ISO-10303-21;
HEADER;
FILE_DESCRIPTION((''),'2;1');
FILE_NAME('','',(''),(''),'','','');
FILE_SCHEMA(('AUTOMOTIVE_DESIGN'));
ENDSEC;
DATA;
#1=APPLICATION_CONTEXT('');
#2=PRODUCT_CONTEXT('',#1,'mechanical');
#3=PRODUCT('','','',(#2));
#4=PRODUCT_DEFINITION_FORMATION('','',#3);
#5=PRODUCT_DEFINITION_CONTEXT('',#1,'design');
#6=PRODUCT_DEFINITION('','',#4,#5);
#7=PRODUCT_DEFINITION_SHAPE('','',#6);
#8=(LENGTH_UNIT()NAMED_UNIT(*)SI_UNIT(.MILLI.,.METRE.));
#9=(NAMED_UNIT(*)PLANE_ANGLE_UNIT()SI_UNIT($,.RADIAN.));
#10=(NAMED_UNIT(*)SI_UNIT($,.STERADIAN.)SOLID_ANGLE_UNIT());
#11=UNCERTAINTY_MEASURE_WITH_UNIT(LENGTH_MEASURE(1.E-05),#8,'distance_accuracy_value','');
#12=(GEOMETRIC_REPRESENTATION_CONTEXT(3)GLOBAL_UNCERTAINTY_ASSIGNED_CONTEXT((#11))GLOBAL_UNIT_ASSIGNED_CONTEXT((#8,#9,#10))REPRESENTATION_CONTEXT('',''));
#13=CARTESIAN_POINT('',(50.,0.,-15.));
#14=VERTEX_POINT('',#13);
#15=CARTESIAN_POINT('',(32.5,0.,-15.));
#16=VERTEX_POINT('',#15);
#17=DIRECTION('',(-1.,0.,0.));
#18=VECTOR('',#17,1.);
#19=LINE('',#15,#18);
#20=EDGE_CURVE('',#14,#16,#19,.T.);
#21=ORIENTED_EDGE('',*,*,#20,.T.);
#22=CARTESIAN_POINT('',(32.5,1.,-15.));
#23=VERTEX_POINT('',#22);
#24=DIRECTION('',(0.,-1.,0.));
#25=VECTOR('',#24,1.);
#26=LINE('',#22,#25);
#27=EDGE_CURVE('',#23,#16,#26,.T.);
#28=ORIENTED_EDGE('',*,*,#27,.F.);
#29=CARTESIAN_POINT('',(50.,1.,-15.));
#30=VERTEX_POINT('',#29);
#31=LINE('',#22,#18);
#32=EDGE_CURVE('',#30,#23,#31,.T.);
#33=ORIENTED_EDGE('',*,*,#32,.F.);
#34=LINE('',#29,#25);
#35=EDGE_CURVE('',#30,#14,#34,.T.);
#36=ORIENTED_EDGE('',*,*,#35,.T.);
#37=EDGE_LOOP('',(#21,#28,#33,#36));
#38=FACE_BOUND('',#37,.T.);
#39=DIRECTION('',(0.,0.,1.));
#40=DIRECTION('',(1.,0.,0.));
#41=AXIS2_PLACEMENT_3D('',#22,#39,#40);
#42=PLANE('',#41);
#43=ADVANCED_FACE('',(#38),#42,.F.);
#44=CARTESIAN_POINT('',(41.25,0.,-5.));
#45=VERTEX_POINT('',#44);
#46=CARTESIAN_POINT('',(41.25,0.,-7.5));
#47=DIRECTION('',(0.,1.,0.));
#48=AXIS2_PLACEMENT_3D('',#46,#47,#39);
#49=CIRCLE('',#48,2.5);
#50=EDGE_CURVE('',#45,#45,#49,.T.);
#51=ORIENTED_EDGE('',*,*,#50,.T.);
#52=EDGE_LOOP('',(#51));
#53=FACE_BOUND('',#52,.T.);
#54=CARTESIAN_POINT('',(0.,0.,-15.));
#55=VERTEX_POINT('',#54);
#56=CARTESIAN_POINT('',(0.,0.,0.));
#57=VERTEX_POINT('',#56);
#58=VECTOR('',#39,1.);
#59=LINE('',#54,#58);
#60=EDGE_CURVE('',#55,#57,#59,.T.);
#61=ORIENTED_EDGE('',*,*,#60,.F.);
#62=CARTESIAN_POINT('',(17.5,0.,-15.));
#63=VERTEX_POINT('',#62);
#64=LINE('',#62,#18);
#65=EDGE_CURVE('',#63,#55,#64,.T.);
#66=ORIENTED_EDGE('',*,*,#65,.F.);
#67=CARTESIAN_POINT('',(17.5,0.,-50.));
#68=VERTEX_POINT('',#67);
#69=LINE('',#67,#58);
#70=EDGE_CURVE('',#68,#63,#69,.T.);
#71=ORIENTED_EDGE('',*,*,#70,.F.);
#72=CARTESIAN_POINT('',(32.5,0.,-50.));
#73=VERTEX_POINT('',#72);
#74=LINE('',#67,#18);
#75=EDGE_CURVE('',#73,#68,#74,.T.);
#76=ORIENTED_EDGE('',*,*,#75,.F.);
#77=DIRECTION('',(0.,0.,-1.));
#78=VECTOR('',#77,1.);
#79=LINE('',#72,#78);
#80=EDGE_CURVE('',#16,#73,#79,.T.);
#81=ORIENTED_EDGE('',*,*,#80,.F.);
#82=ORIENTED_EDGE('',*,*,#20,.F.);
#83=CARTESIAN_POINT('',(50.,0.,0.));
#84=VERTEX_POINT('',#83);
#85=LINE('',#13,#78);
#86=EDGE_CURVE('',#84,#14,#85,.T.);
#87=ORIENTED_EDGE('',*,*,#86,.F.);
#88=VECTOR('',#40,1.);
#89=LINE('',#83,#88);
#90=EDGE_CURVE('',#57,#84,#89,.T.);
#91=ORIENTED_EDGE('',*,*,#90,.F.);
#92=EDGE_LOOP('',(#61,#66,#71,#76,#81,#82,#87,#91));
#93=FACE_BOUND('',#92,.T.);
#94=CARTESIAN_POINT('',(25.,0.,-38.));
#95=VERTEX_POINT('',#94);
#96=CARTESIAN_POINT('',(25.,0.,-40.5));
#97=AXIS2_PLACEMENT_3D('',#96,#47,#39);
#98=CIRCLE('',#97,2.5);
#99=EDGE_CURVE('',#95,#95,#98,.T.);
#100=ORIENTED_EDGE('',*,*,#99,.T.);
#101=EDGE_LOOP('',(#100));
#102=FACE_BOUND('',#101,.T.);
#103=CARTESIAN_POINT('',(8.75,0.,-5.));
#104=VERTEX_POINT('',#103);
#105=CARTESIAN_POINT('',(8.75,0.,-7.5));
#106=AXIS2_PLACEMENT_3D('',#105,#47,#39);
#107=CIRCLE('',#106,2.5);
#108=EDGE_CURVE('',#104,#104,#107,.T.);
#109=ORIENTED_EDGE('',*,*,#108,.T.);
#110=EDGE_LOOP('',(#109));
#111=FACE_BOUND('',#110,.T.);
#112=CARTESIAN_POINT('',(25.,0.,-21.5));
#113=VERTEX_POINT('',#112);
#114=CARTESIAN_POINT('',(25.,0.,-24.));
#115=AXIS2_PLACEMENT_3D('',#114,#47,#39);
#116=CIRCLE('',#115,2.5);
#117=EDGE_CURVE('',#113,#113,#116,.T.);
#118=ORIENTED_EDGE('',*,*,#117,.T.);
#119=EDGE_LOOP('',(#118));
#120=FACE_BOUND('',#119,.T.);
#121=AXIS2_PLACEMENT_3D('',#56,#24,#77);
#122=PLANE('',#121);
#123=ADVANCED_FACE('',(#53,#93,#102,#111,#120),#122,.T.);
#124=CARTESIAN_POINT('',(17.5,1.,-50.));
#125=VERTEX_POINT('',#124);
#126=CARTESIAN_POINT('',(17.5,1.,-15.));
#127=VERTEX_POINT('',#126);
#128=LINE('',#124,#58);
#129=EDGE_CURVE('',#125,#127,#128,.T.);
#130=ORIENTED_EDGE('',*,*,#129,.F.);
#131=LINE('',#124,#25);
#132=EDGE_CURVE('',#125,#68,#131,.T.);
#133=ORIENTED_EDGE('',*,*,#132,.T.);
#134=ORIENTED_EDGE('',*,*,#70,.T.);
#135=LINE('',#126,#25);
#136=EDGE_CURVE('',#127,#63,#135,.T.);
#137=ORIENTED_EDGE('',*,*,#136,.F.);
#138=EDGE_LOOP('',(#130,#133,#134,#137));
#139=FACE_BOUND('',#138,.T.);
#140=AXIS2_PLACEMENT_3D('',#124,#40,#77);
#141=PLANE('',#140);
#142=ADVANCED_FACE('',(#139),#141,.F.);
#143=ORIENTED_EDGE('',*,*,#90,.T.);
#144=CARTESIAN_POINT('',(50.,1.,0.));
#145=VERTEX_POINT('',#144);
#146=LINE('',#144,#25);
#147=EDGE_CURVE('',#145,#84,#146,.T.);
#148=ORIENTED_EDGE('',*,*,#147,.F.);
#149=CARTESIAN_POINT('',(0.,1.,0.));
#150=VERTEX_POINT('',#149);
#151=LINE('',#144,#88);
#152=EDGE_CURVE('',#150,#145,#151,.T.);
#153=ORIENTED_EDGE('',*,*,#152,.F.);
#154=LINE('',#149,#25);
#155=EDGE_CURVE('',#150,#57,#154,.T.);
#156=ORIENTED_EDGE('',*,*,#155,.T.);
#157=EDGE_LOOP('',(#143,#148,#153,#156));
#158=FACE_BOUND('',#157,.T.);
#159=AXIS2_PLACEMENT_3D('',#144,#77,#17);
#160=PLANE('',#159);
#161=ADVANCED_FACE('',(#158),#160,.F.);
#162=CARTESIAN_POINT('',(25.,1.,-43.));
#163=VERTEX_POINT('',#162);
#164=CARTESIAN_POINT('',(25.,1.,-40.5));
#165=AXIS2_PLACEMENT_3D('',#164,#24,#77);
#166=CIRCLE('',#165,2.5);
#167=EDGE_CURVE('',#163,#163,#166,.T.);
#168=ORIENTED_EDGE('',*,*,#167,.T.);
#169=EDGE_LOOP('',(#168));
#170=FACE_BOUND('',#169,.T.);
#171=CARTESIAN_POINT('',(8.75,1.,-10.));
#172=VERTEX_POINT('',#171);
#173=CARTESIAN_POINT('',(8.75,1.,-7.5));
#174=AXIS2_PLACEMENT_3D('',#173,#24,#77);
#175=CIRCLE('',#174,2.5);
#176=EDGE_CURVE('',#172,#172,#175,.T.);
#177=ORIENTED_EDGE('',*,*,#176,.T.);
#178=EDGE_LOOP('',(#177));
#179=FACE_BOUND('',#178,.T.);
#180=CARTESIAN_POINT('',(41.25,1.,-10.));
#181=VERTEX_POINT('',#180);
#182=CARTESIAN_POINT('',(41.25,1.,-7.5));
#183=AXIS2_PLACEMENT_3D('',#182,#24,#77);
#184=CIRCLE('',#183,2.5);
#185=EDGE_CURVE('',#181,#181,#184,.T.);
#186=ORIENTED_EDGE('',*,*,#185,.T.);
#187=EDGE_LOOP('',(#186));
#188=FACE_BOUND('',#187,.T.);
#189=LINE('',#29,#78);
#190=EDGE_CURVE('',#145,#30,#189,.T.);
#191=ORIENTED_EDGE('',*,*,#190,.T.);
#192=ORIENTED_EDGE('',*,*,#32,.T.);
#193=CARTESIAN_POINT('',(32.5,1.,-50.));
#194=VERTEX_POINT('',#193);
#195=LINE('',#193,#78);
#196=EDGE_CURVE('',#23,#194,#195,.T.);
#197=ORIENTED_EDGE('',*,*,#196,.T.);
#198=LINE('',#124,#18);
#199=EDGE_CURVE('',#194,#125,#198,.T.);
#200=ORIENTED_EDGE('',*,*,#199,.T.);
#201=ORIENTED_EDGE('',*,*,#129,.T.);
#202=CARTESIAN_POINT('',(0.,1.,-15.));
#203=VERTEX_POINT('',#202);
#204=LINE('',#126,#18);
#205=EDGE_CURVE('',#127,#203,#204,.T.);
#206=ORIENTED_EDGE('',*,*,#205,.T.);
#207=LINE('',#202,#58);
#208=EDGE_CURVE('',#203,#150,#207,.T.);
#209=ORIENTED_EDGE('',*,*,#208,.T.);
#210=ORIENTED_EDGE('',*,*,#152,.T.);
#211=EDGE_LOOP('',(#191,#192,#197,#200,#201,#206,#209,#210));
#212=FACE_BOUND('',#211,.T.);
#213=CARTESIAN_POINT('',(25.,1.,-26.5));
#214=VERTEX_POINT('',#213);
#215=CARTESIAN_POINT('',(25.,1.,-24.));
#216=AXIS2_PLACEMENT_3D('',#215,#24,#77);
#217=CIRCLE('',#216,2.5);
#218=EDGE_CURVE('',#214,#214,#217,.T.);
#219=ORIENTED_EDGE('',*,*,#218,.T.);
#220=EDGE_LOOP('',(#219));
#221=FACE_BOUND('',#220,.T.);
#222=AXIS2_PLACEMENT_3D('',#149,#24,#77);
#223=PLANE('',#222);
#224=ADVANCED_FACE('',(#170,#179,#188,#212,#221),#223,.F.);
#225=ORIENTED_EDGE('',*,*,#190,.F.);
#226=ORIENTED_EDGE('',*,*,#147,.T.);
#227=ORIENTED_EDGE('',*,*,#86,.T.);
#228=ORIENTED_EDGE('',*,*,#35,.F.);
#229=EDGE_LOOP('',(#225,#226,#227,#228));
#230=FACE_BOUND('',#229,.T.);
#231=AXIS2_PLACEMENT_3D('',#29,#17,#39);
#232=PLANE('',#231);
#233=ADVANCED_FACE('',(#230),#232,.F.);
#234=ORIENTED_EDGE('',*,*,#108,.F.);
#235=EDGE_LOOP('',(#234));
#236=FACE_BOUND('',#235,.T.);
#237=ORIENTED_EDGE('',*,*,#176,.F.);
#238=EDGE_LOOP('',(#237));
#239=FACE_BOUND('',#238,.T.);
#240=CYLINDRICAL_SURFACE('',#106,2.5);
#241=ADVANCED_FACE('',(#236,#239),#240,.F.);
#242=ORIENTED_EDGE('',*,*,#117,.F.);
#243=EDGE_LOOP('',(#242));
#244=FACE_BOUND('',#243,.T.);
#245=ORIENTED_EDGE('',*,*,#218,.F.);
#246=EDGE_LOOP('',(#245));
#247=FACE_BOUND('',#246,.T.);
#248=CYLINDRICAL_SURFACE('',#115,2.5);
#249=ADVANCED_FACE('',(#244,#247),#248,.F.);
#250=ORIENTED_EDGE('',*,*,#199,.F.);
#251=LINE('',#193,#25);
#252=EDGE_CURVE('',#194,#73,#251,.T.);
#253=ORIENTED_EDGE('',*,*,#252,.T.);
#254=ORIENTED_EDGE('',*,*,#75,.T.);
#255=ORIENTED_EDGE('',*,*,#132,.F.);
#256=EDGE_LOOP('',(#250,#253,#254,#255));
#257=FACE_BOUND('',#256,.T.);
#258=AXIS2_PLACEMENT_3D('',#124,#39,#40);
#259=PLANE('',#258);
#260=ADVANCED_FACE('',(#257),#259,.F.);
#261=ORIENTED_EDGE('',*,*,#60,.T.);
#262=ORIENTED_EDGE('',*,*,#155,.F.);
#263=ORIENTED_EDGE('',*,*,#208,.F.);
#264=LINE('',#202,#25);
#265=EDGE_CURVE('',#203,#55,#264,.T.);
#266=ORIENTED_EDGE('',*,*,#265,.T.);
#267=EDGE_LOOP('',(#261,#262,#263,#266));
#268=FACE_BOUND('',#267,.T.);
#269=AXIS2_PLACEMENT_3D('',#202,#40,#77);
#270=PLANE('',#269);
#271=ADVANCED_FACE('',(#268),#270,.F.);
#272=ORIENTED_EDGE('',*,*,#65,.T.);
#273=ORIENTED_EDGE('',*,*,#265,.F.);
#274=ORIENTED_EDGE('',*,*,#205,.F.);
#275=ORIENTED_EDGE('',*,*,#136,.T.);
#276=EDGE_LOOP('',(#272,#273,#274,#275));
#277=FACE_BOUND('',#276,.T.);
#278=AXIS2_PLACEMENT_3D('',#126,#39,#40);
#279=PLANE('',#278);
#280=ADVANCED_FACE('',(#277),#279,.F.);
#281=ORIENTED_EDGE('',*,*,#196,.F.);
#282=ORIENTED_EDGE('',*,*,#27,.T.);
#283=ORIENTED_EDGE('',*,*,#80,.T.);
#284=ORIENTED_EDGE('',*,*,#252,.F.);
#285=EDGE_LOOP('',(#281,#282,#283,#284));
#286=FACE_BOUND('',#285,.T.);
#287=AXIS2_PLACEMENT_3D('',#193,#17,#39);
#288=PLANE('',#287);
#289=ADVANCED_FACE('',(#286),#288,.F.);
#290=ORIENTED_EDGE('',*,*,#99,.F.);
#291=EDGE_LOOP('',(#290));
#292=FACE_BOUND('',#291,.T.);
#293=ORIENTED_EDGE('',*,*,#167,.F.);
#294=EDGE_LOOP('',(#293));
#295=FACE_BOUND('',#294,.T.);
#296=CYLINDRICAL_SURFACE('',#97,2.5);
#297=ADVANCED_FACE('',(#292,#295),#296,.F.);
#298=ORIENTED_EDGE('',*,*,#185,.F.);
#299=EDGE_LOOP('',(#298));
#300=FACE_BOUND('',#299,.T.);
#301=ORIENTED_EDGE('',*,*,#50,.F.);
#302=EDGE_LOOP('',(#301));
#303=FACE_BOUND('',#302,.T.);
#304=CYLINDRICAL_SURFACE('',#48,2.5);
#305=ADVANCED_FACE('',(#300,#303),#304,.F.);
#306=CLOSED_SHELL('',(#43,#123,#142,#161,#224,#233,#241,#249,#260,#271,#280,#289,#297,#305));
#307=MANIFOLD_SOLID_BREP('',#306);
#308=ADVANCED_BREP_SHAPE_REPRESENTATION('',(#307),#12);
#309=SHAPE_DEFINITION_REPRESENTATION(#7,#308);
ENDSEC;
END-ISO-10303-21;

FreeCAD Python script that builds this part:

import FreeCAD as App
import Part
import Sketcher

V = App.Vector


def add_polygon(sketch, points):
    """Adds a closed chain of lines whose ends are joined by coincident constraints."""
    first, n = sketch.GeometryCount, len(points)
    for a, b in zip(points, points[1:] + points[:1]):
        sketch.addGeometry(Part.LineSegment(App.Vector(*a, 0), App.Vector(*b, 0)), False)
    for i in range(n):
        sketch.addConstraint(Sketcher.Constraint("Coincident", first + i, 2, first + (i + 1) % n, 1))

doc = App.newDocument("Part")
body = doc.addObject("PartDesign::Body", "Body")

sketch1 = doc.addObject("Sketcher::SketchObject", "Sketch")
body.addObject(sketch1)
sketch1.AttachmentSupport = (doc.XZ_Plane, [""])
sketch1.MapMode = "FlatFace"
add_polygon(sketch1, [(32, -50), (18, -50), (18, -15), (0, -15), (0, 0), (50, 0), (50, -15), (32, -15)])
sketch1.addConstraint([
    Sketcher.Constraint("Horizontal", 0),
    Sketcher.Constraint("Vertical", 1),
    Sketcher.Constraint("Horizontal", 2),
    Sketcher.Constraint("Vertical", 3),
    Sketcher.Constraint("Horizontal", 4),
    Sketcher.Constraint("Vertical", 5),
    Sketcher.Constraint("Horizontal", 6),
    Sketcher.Constraint("Vertical", 7),
    Sketcher.Constraint("Coincident", 3, 2, -1, 1),
    Sketcher.Constraint("Horizontal", 2, 2, 5, 2),
    Sketcher.Constraint("Equal", 2, 6),
    Sketcher.Constraint("Equal", 0, 3),
    Sketcher.Constraint("DistanceX", 0, 2, 0, 1, 15.0),
    Sketcher.Constraint("DistanceX", 4, 1, 4, 2, 50.0),
    Sketcher.Constraint("DistanceY", 1, 1, 1, 2, 35.0),
])
pad1 = doc.addObject("PartDesign::Pad", "Pad")
body.addObject(pad1)
pad1.Profile = sketch1
pad1.Length = 1
pad1.Reversed = True

sketch2 = doc.addObject("Sketcher::SketchObject", "Sketch001")
body.addObject(sketch2)
sketch2.AttachmentSupport = (doc.XZ_Plane, [""])
sketch2.MapMode = "FlatFace"
sketch2.AttachmentOffset = App.Placement(V(0, 0, -1), App.Rotation())
sketch2.addGeometry([
    Part.Circle(V(41.2, -7.5, 0), V(0, 0, 1), 2.5),
    Part.Circle(V(25, -40.5, 0), V(0, 0, 1), 2.5),
    Part.Circle(V(25, -24, 0), V(0, 0, 1), 2.5),
    Part.Circle(V(8.8, -7.5, 0), V(0, 0, 1), 2.5),
], False)
sketch2.addConstraint([
    Sketcher.Constraint("Equal", 0, 1),
    Sketcher.Constraint("Equal", 1, 2),
    Sketcher.Constraint("Equal", 2, 3),
    Sketcher.Constraint("Horizontal", 0, 3, 3, 3),
    Sketcher.Constraint("Vertical", 1, 3, 2, 3),
    Sketcher.Constraint("Diameter", 0, 5.0),
    Sketcher.Constraint("DistanceX", -1, 1, 1, 3, 25.0),
    Sketcher.Constraint("DistanceY", 2, 3, -1, 1, 24.0),
    Sketcher.Constraint("DistanceY", 1, 3, 0, 3, 33.0),
    Sketcher.Constraint("DistanceY", 0, 3, -1, 1, 7.5),
    Sketcher.Constraint("DistanceX", 3, 3, 0, 3, 32.5),
    Sketcher.Constraint("DistanceX", -1, 1, 0, 3, 41.25),
])
pocket1 = doc.addObject("PartDesign::Pocket", "Pocket")
body.addObject(pocket1)
pocket1.Profile = sketch2
pocket1.Type = "ThroughAll"
pocket1.Midplane = True

doc.recompute()
